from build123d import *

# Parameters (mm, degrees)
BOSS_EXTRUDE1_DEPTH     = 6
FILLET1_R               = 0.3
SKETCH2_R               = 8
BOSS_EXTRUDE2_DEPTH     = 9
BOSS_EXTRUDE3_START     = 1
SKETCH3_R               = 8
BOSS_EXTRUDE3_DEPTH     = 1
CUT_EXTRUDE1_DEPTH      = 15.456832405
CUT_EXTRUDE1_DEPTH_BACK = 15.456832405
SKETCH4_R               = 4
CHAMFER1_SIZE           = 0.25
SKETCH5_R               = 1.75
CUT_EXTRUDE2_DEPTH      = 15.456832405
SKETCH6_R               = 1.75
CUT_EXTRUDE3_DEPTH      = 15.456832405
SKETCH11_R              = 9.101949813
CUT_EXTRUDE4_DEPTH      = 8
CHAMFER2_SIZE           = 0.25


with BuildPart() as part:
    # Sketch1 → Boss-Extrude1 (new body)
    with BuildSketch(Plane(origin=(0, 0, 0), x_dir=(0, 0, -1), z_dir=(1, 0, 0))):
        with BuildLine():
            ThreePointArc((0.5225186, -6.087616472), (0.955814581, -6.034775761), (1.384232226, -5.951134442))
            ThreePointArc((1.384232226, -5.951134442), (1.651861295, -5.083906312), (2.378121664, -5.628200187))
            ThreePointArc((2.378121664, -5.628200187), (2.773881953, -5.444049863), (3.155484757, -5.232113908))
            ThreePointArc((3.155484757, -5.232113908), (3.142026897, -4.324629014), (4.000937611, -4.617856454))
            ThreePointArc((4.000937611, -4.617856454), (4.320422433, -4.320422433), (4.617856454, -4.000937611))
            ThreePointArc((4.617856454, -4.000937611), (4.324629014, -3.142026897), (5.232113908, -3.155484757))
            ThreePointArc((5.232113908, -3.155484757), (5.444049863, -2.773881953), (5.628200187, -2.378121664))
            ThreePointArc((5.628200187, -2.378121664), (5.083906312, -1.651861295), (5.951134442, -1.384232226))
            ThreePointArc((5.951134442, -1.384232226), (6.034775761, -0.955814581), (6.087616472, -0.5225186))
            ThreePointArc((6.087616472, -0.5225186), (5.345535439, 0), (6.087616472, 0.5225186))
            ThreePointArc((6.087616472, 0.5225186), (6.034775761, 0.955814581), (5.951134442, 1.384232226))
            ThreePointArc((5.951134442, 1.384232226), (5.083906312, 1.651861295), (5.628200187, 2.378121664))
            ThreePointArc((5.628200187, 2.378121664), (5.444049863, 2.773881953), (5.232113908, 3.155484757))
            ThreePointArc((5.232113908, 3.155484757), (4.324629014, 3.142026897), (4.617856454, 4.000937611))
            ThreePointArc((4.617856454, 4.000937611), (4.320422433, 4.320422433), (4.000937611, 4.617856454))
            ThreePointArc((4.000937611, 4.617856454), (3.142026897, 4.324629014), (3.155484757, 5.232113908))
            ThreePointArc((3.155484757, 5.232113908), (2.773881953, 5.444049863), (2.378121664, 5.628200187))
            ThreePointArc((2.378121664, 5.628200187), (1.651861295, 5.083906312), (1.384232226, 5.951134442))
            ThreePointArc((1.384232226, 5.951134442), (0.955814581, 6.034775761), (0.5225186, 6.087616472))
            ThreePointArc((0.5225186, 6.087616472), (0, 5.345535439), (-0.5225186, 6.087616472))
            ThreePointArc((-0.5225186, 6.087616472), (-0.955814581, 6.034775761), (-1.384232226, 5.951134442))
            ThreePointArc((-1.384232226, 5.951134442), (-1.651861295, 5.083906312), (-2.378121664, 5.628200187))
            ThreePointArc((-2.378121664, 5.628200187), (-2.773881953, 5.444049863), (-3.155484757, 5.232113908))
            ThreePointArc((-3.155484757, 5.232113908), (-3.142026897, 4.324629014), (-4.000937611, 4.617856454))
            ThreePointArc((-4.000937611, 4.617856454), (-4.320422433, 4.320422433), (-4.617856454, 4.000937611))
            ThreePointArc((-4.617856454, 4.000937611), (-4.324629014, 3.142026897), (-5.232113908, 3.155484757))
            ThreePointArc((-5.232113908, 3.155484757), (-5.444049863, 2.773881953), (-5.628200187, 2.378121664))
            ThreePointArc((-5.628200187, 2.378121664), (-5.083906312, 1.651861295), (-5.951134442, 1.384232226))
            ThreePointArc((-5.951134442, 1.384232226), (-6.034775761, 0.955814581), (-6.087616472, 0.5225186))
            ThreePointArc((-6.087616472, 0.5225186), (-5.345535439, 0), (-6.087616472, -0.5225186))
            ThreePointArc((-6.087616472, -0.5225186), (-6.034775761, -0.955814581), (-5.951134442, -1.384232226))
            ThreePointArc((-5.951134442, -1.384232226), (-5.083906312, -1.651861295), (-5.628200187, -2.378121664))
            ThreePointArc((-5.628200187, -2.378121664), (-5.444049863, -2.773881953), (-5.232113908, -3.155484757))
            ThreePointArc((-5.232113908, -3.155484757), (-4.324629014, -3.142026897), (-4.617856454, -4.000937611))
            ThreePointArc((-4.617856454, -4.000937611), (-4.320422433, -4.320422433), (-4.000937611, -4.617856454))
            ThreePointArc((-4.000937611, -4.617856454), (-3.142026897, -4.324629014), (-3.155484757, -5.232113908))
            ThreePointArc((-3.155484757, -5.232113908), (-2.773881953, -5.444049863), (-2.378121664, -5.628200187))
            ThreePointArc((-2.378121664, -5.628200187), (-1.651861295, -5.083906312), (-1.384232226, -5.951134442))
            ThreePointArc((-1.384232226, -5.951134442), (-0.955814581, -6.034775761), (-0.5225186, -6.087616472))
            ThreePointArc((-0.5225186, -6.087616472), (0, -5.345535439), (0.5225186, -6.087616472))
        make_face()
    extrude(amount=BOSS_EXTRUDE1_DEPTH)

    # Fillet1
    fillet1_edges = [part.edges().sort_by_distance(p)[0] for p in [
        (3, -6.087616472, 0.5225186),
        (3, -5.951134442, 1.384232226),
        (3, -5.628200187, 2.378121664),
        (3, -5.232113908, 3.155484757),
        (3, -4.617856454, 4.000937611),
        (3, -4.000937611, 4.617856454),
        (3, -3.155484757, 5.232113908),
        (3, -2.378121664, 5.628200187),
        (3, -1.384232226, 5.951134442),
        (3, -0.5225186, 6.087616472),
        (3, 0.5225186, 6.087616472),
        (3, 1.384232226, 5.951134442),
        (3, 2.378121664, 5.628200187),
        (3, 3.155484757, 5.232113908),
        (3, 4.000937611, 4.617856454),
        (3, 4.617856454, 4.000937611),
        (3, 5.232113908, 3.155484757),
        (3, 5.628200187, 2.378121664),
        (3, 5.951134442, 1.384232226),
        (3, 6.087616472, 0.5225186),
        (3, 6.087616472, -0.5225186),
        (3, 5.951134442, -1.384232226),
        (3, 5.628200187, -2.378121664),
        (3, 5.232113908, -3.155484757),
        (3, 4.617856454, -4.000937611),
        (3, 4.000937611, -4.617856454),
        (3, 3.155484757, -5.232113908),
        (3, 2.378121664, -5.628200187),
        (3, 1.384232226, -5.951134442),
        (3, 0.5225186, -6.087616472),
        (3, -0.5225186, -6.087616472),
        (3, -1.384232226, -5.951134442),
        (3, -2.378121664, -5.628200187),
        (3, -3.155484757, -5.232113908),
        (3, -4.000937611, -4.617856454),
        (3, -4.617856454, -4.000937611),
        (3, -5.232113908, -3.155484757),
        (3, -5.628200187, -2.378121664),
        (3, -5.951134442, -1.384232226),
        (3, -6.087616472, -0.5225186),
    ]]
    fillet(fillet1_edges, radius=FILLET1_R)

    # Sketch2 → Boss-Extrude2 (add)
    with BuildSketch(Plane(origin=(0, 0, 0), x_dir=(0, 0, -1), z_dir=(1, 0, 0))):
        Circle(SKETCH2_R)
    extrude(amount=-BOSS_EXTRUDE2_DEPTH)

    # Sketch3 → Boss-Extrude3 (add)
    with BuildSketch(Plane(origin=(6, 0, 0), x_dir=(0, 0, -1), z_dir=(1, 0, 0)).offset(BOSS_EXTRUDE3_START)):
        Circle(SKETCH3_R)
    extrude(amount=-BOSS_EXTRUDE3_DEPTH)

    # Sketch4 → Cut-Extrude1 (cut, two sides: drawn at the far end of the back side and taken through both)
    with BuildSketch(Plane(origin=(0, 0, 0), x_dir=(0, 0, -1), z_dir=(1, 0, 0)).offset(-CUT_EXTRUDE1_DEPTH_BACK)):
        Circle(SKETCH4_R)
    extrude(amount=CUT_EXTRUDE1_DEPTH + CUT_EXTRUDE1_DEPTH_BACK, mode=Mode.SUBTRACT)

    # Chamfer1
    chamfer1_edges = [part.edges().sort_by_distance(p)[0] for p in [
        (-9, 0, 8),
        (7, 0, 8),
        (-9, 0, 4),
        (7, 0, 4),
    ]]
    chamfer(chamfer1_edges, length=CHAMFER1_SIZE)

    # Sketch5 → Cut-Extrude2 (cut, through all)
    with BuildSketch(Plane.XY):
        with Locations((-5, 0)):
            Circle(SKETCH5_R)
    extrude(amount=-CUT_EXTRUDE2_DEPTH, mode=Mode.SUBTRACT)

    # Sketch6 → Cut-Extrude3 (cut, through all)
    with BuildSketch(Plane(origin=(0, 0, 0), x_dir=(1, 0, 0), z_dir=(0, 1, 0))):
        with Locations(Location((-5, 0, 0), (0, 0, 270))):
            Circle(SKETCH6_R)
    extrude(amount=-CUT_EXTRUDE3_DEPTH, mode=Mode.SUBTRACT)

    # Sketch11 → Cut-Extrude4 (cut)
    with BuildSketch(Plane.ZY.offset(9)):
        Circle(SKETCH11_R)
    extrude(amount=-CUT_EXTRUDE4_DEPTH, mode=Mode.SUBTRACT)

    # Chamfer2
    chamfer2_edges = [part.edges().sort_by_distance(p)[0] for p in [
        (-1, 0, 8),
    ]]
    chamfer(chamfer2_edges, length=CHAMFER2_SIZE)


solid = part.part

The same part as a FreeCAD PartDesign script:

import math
import FreeCAD as App
import Part
import Sketcher


def edges_at(feature, points):
    """Names of the edges that pass closest to the given points."""
    edges = feature.Shape.Edges
    near = lambda p: min(range(len(edges)), key=lambda i: edges[i].distToShape(Part.Vertex(*p))[0])
    return sorted({f"Edge{near(p) + 1}" for p in points})

doc = App.newDocument("Part")
params = doc.addObject("Spreadsheet::Sheet", "Params")
for row, (alias, value) in enumerate([
    ("sketch1_radius", "6.11 mm"),
    ("pad1_length", "6 mm"),
    ("fillet_radius", "0.3 mm"),
    ("sketch2_diameter", "16 mm"),
    ("pad2_length", "9 mm"),
    ("sketch3_diameter", "16 mm"),
    ("pad3_length", "1 mm"),
    ("sketch4_diameter", "8 mm"),
    ("chamfer_size", "0.25 mm"),
    ("sketch5_diameter", "3.5 mm"),
    ("sketch6_diameter", "3.5 mm"),
    ("pocket4_length", "8 mm"),
    ("chamfer2_size", "0.25 mm"),
], start=1):
    params.set(f"A{row}", alias)
    params.set(f"B{row}", "=" + value)
    params.setAlias(f"B{row}", alias)

body = doc.addObject("PartDesign::Body", "Body")

# Sketch on YZ plane
sketch1 = body.newObject("Sketcher::SketchObject", "Sketch")
sketch1.AttachmentSupport = (doc.getObject("YZ_Plane"), [""])
sketch1.MapMode = "FlatFace"
sketch1.addGeometry(Part.ArcOfCircle(Part.Circle(App.Vector(0, 0, 0), App.Vector(0, 0, 1), 6.1), math.radians(-175.09), math.radians(-166.91)), False)
sketch1.addGeometry(Part.ArcOfCircle(Part.Circle(App.Vector(-5.6, -1.8, 0), App.Vector(0, 0, 1), 0.6), math.radians(-92), math.radians(128)), False)
sketch1.addGeometry(Part.ArcOfCircle(Part.Circle(App.Vector(0, 0, 0), App.Vector(0, 0, 1), 6.1), math.radians(-157.09), math.radians(-148.91)), False)
sketch1.addGeometry(Part.ArcOfCircle(Part.Circle(App.Vector(-4.8, -3.5, 0), App.Vector(0, 0, 1), 0.6), math.radians(-74), math.radians(146)), False)
sketch1.addGeometry(Part.ArcOfCircle(Part.Circle(App.Vector(0, 0, 0), App.Vector(0, 0, 1), 6.1), math.radians(-139.09), math.radians(-130.91)), False)
sketch1.addGeometry(Part.ArcOfCircle(Part.Circle(App.Vector(-3.5, -4.8, 0), App.Vector(0, 0, 1), 0.6), math.radians(-56), math.radians(164)), False)
sketch1.addGeometry(Part.ArcOfCircle(Part.Circle(App.Vector(0, 0, 0), App.Vector(0, 0, 1), 6.1), math.radians(-121.09), math.radians(-112.91)), False)
sketch1.addGeometry(Part.ArcOfCircle(Part.Circle(App.Vector(-1.8, -5.6, 0), App.Vector(0, 0, 1), 0.6), math.radians(-38), math.radians(182)), False)
sketch1.addGeometry(Part.ArcOfCircle(Part.Circle(App.Vector(0, 0, 0), App.Vector(0, 0, 1), 6.1), math.radians(-103.09), math.radians(-94.91)), False)
sketch1.addGeometry(Part.ArcOfCircle(Part.Circle(App.Vector(0, -5.9, 0), App.Vector(0, 0, 1), 0.6), math.radians(-20), math.radians(200)), False)
sketch1.addGeometry(Part.ArcOfCircle(Part.Circle(App.Vector(0, 0, 0), App.Vector(0, 0, 1), 6.1), math.radians(-85.09), math.radians(-76.91)), False)
sketch1.addGeometry(Part.ArcOfCircle(Part.Circle(App.Vector(1.8, -5.6, 0), App.Vector(0, 0, 1), 0.6), math.radians(-2), math.radians(218)), False)
sketch1.addGeometry(Part.ArcOfCircle(Part.Circle(App.Vector(0, 0, 0), App.Vector(0, 0, 1), 6.1), math.radians(-67.09), math.radians(-58.91)), False)
sketch1.addGeometry(Part.ArcOfCircle(Part.Circle(App.Vector(3.5, -4.8, 0), App.Vector(0, 0, 1), 0.6), math.radians(16), math.radians(236)), False)
sketch1.addGeometry(Part.ArcOfCircle(Part.Circle(App.Vector(0, 0, 0), App.Vector(0, 0, 1), 6.1), math.radians(-49.09), math.radians(-40.91)), False)
sketch1.addGeometry(Part.ArcOfCircle(Part.Circle(App.Vector(4.8, -3.5, 0), App.Vector(0, 0, 1), 0.6), math.radians(34), math.radians(254)), False)
sketch1.addGeometry(Part.ArcOfCircle(Part.Circle(App.Vector(0, 0, 0), App.Vector(0, 0, 1), 6.1), math.radians(-31.09), math.radians(-22.91)), False)
sketch1.addGeometry(Part.ArcOfCircle(Part.Circle(App.Vector(5.6, -1.8, 0), App.Vector(0, 0, 1), 0.6), math.radians(52), math.radians(272)), False)
sketch1.addGeometry(Part.ArcOfCircle(Part.Circle(App.Vector(0, 0, 0), App.Vector(0, 0, 1), 6.1), math.radians(-13.09), math.radians(-4.91)), False)
sketch1.addGeometry(Part.ArcOfCircle(Part.Circle(App.Vector(5.9, 0, 0), App.Vector(0, 0, 1), 0.6), math.radians(70), math.radians(290)), False)
sketch1.addGeometry(Part.ArcOfCircle(Part.Circle(App.Vector(0, 0, 0), App.Vector(0, 0, 1), 6.1), math.radians(4.91), math.radians(13.09)), False)
sketch1.addGeometry(Part.ArcOfCircle(Part.Circle(App.Vector(5.6, 1.8, 0), App.Vector(0, 0, 1), 0.6), math.radians(88), math.radians(308)), False)
sketch1.addGeometry(Part.ArcOfCircle(Part.Circle(App.Vector(0, 0, 0), App.Vector(0, 0, 1), 6.1), math.radians(22.91), math.radians(31.09)), False)
sketch1.addGeometry(Part.ArcOfCircle(Part.Circle(App.Vector(4.8, 3.5, 0), App.Vector(0, 0, 1), 0.6), math.radians(106), math.radians(326)), False)
sketch1.addGeometry(Part.ArcOfCircle(Part.Circle(App.Vector(0, 0, 0), App.Vector(0, 0, 1), 6.1), math.radians(40.91), math.radians(49.09)), False)
sketch1.addGeometry(Part.ArcOfCircle(Part.Circle(App.Vector(3.5, 4.8, 0), App.Vector(0, 0, 1), 0.6), math.radians(124), math.radians(344)), False)
sketch1.addGeometry(Part.ArcOfCircle(Part.Circle(App.Vector(0, 0, 0), App.Vector(0, 0, 1), 6.1), math.radians(58.91), math.radians(67.09)), False)
sketch1.addGeometry(Part.ArcOfCircle(Part.Circle(App.Vector(1.8, 5.6, 0), App.Vector(0, 0, 1), 0.6), math.radians(142), math.radians(362)), False)
sketch1.addGeometry(Part.ArcOfCircle(Part.Circle(App.Vector(0, 0, 0), App.Vector(0, 0, 1), 6.1), math.radians(76.91), math.radians(85.09)), False)
sketch1.addGeometry(Part.ArcOfCircle(Part.Circle(App.Vector(0, 5.9, 0), App.Vector(0, 0, 1), 0.6), math.radians(160), math.radians(380)), False)
sketch1.addGeometry(Part.ArcOfCircle(Part.Circle(App.Vector(0, 0, 0), App.Vector(0, 0, 1), 6.1), math.radians(94.91), math.radians(103.09)), False)
sketch1.addGeometry(Part.ArcOfCircle(Part.Circle(App.Vector(-1.8, 5.6, 0), App.Vector(0, 0, 1), 0.6), math.radians(178), math.radians(398)), False)
sketch1.addGeometry(Part.ArcOfCircle(Part.Circle(App.Vector(0, 0, 0), App.Vector(0, 0, 1), 6.1), math.radians(112.91), math.radians(121.09)), False)
sketch1.addGeometry(Part.ArcOfCircle(Part.Circle(App.Vector(-3.5, 4.8, 0), App.Vector(0, 0, 1), 0.6), math.radians(-164), math.radians(56)), False)
sketch1.addGeometry(Part.ArcOfCircle(Part.Circle(App.Vector(0, 0, 0), App.Vector(0, 0, 1), 6.1), math.radians(130.91), math.radians(139.09)), False)
sketch1.addGeometry(Part.ArcOfCircle(Part.Circle(App.Vector(-4.8, 3.5, 0), App.Vector(0, 0, 1), 0.6), math.radians(-146), math.radians(74)), False)
sketch1.addGeometry(Part.ArcOfCircle(Part.Circle(App.Vector(0, 0, 0), App.Vector(0, 0, 1), 6.1), math.radians(148.91), math.radians(157.09)), False)
sketch1.addGeometry(Part.ArcOfCircle(Part.Circle(App.Vector(-5.6, 1.8, 0), App.Vector(0, 0, 1), 0.6), math.radians(-128), math.radians(92)), False)
sketch1.addGeometry(Part.ArcOfCircle(Part.Circle(App.Vector(0, 0, 0), App.Vector(0, 0, 1), 6.1), math.radians(166.91), math.radians(175.09)), False)
sketch1.addGeometry(Part.ArcOfCircle(Part.Circle(App.Vector(-5.9, 0, 0), App.Vector(0, 0, 1), 0.6), math.radians(-110), math.radians(110)), False)
sketch1.addConstraint(Sketcher.Constraint("Coincident", 0, 2, 1, 2))
sketch1.addConstraint(Sketcher.Constraint("Coincident", 1, 1, 2, 1))
sketch1.addConstraint(Sketcher.Constraint("Coincident", 2, 2, 3, 2))
sketch1.addConstraint(Sketcher.Constraint("Coincident", 3, 1, 4, 1))
sketch1.addConstraint(Sketcher.Constraint("Coincident", 4, 2, 5, 2))
sketch1.addConstraint(Sketcher.Constraint("Coincident", 5, 1, 6, 1))
sketch1.addConstraint(Sketcher.Constraint("Coincident", 6, 2, 7, 2))
sketch1.addConstraint(Sketcher.Constraint("Coincident", 7, 1, 8, 1))
sketch1.addConstraint(Sketcher.Constraint("Coincident", 8, 2, 9, 2))
sketch1.addConstraint(Sketcher.Constraint("Coincident", 9, 1, 10, 1))
sketch1.addConstraint(Sketcher.Constraint("Coincident", 10, 2, 11, 2))
sketch1.addConstraint(Sketcher.Constraint("Coincident", 11, 1, 12, 1))
sketch1.addConstraint(Sketcher.Constraint("Coincident", 12, 2, 13, 2))
sketch1.addConstraint(Sketcher.Constraint("Coincident", 13, 1, 14, 1))
sketch1.addConstraint(Sketcher.Constraint("Coincident", 14, 2, 15, 2))
sketch1.addConstraint(Sketcher.Constraint("Coincident", 15, 1, 16, 1))
sketch1.addConstraint(Sketcher.Constraint("Coincident", 16, 2, 17, 2))
sketch1.addConstraint(Sketcher.Constraint("Coincident", 17, 1, 18, 1))
sketch1.addConstraint(Sketcher.Constraint("Coincident", 18, 2, 19, 2))
sketch1.addConstraint(Sketcher.Constraint("Coincident", 19, 1, 20, 1))
sketch1.addConstraint(Sketcher.Constraint("Coincident", 20, 2, 21, 2))
sketch1.addConstraint(Sketcher.Constraint("Coincident", 21, 1, 22, 1))
sketch1.addConstraint(Sketcher.Constraint("Coincident", 22, 2, 23, 2))
sketch1.addConstraint(Sketcher.Constraint("Coincident", 23, 1, 24, 1))
sketch1.addConstraint(Sketcher.Constraint("Coincident", 24, 2, 25, 2))
sketch1.addConstraint(Sketcher.Constraint("Coincident", 25, 1, 26, 1))
sketch1.addConstraint(Sketcher.Constraint("Coincident", 26, 2, 27, 2))
sketch1.addConstraint(Sketcher.Constraint("Coincident", 27, 1, 28, 1))
sketch1.addConstraint(Sketcher.Constraint("Coincident", 28, 2, 29, 2))
sketch1.addConstraint(Sketcher.Constraint("Coincident", 29, 1, 30, 1))
sketch1.addConstraint(Sketcher.Constraint("Coincident", 30, 2, 31, 2))
sketch1.addConstraint(Sketcher.Constraint("Coincident", 31, 1, 32, 1))
sketch1.addConstraint(Sketcher.Constraint("Coincident", 32, 2, 33, 2))
sketch1.addConstraint(Sketcher.Constraint("Coincident", 33, 1, 34, 1))
sketch1.addConstraint(Sketcher.Constraint("Coincident", 34, 2, 35, 2))
sketch1.addConstraint(Sketcher.Constraint("Coincident", 35, 1, 36, 1))
sketch1.addConstraint(Sketcher.Constraint("Coincident", 36, 2, 37, 2))
sketch1.addConstraint(Sketcher.Constraint("Coincident", 37, 1, 38, 1))
sketch1.addConstraint(Sketcher.Constraint("Coincident", 38, 2, 39, 2))
sketch1.addConstraint(Sketcher.Constraint("Coincident", 39, 1, 0, 1))
sketch1.addConstraint(Sketcher.Constraint("Coincident", 0, 3, -1, 1))
sketch1.addConstraint(Sketcher.Constraint("Coincident", 2, 3, -1, 1))
sketch1.addConstraint(Sketcher.Constraint("Coincident", 4, 3, -1, 1))
sketch1.addConstraint(Sketcher.Constraint("Coincident", 6, 3, -1, 1))
sketch1.addConstraint(Sketcher.Constraint("Coincident", 8, 3, -1, 1))
sketch1.addConstraint(Sketcher.Constraint("Coincident", 10, 3, -1, 1))
sketch1.addConstraint(Sketcher.Constraint("Coincident", 12, 3, -1, 1))
sketch1.addConstraint(Sketcher.Constraint("Coincident", 14, 3, -1, 1))
sketch1.addConstraint(Sketcher.Constraint("Coincident", 16, 3, -1, 1))
sketch1.addConstraint(Sketcher.Constraint("Coincident", 18, 3, -1, 1))
sketch1.addConstraint(Sketcher.Constraint("Coincident", 20, 3, -1, 1))
sketch1.addConstraint(Sketcher.Constraint("Coincident", 22, 3, -1, 1))
sketch1.addConstraint(Sketcher.Constraint("Coincident", 24, 3, -1, 1))
sketch1.addConstraint(Sketcher.Constraint("Coincident", 26, 3, -1, 1))
sketch1.addConstraint(Sketcher.Constraint("Coincident", 28, 3, -1, 1))
sketch1.addConstraint(Sketcher.Constraint("Coincident", 30, 3, -1, 1))
sketch1.addConstraint(Sketcher.Constraint("Coincident", 32, 3, -1, 1))
sketch1.addConstraint(Sketcher.Constraint("Coincident", 34, 3, -1, 1))
sketch1.addConstraint(Sketcher.Constraint("Coincident", 36, 3, -1, 1))
sketch1.addConstraint(Sketcher.Constraint("Coincident", 38, 3, -1, 1))
sketch1.addConstraint(Sketcher.Constraint("Equal", 0, 2))
sketch1.addConstraint(Sketcher.Constraint("Equal", 1, 3))
sketch1.addConstraint(Sketcher.Constraint("Equal", 2, 4))
sketch1.addConstraint(Sketcher.Constraint("Equal", 3, 5))
sketch1.addConstraint(Sketcher.Constraint("Equal", 4, 6))
sketch1.addConstraint(Sketcher.Constraint("Equal", 5, 7))
sketch1.addConstraint(Sketcher.Constraint("Equal", 6, 8))
sketch1.addConstraint(Sketcher.Constraint("Equal", 7, 9))
sketch1.addConstraint(Sketcher.Constraint("Equal", 8, 10))
sketch1.addConstraint(Sketcher.Constraint("Equal", 9, 11))
sketch1.addConstraint(Sketcher.Constraint("Equal", 10, 12))
sketch1.addConstraint(Sketcher.Constraint("Equal", 11, 13))
sketch1.addConstraint(Sketcher.Constraint("Equal", 12, 14))
sketch1.addConstraint(Sketcher.Constraint("Equal", 13, 15))
sketch1.addConstraint(Sketcher.Constraint("Equal", 14, 16))
sketch1.addConstraint(Sketcher.Constraint("Equal", 15, 17))
sketch1.addConstraint(Sketcher.Constraint("Equal", 16, 18))
sketch1.addConstraint(Sketcher.Constraint("Equal", 17, 19))
sketch1.addConstraint(Sketcher.Constraint("Equal", 18, 20))
sketch1.addConstraint(Sketcher.Constraint("Equal", 19, 21))
sketch1.addConstraint(Sketcher.Constraint("Equal", 20, 22))
sketch1.addConstraint(Sketcher.Constraint("Equal", 21, 23))
sketch1.addConstraint(Sketcher.Constraint("Equal", 22, 24))
sketch1.addConstraint(Sketcher.Constraint("Equal", 23, 25))
sketch1.addConstraint(Sketcher.Constraint("Equal", 24, 26))
sketch1.addConstraint(Sketcher.Constraint("Equal", 25, 27))
sketch1.addConstraint(Sketcher.Constraint("Equal", 26, 28))
sketch1.addConstraint(Sketcher.Constraint("Equal", 27, 29))
sketch1.addConstraint(Sketcher.Constraint("Equal", 28, 30))
sketch1.addConstraint(Sketcher.Constraint("Equal", 29, 31))
sketch1.addConstraint(Sketcher.Constraint("Equal", 30, 32))
sketch1.addConstraint(Sketcher.Constraint("Equal", 31, 33))
sketch1.addConstraint(Sketcher.Constraint("Equal", 32, 34))
sketch1.addConstraint(Sketcher.Constraint("Equal", 33, 35))
sketch1.addConstraint(Sketcher.Constraint("Equal", 34, 36))
sketch1.addConstraint(Sketcher.Constraint("Equal", 35, 37))
sketch1.addConstraint(Sketcher.Constraint("Equal", 36, 38))
sketch1.addConstraint(Sketcher.Constraint("Equal", 37, 39))
sketch1.addConstraint(Sketcher.Constraint("Symmetric", 1, 3, 21, 3, -1, 1))
sketch1.addConstraint(Sketcher.Constraint("Symmetric", 3, 3, 23, 3, -1, 1))
sketch1.addConstraint(Sketcher.Constraint("Symmetric", 5, 3, 25, 3, -1, 1))
sketch1.addConstraint(Sketcher.Constraint("Symmetric", 7, 3, 27, 3, -1, 1))
sketch1.addConstraint(Sketcher.Constraint("Symmetric", 9, 3, 29, 3, -1, 1))
sketch1.addConstraint(Sketcher.Constraint("Symmetric", 11, 3, 31, 3, -1, 1))
sketch1.addConstraint(Sketcher.Constraint("Symmetric", 13, 3, 33, 3, -1, 1))
sketch1.addConstraint(Sketcher.Constraint("Symmetric", 15, 3, 35, 3, -1, 1))
sketch1.addConstraint(Sketcher.Constraint("Symmetric", 17, 3, 37, 3, -1, 1))
sketch1.addConstraint(Sketcher.Constraint("Symmetric", 19, 3, 39, 3, -1, 1))
sketch1.addConstraint(Sketcher.Constraint("Symmetric", 7, 3, 11, 3, -2))
sketch1.addConstraint(Sketcher.Constraint("Symmetric", 5, 3, 13, 3, -2))
sketch1.addConstraint(Sketcher.Constraint("Symmetric", 3, 3, 15, 3, -2))
sketch1.addConstraint(Sketcher.Constraint("Symmetric", 1, 3, 17, 3, -2))
sketch1.addConstraint(Sketcher.Constraint("PointOnObject", 9, 3, -2))
sketch1.addConstraint(Sketcher.Constraint("PointOnObject", 19, 3, -1))
sketch1.addConstraint(Sketcher.Constraint("Radius", 0, 6.11))
sketch1.addConstraint(Sketcher.Constraint("Radius", 1, 0.555))
sketch1.addConstraint(Sketcher.Constraint("DistanceX", 1, 1, -1, 1, 5.6282))
sketch1.addConstraint(Sketcher.Constraint("DistanceY", 6, 2, -1, 1, 5.6282))
sketch1.addConstraint(Sketcher.Constraint("DistanceX", 8, 2, -1, 1, 0.522519))
sketch1.addConstraint(Sketcher.Constraint("DistanceY", 18, 2, -1, 1, 0.522519))
sketch1.addConstraint(Sketcher.Constraint("DistanceX", 1, 3, -1, 1, 5.611743))
sketch1.addConstraint(Sketcher.Constraint("DistanceX", 3, 3, -1, 1, 4.773633))
sketch1.addConstraint(Sketcher.Constraint("DistanceY", 3, 3, -1, 1, 3.468248))
sketch1.addConstraint(Sketcher.Constraint("DistanceX", 5, 3, -1, 1, 3.468248))
sketch1.addConstraint(Sketcher.Constraint("DistanceY", 5, 3, -1, 1, 4.773633))
sketch1.addConstraint(Sketcher.Constraint("DistanceX", 7, 3, -1, 1, 1.823366))
sketch1.setExpression("Constraints[114]", "Params.sketch1_radius")
pad1 = body.newObject("PartDesign::Pad", "Pad")
pad1.Profile = sketch1
pad1.setExpression("Length", "Params.pad1_length")
doc.recompute()

fillet = body.newObject("PartDesign::Fillet", "Fillet")
fillet.Base = (pad1, edges_at(pad1, [
    (3, -6.088, 0.523),
    (3, -5.951, 1.384),
    (3, -5.628, 2.378),
    (3, -5.232, 3.155),
    (3, -4.618, 4.001),
    (3, -4.001, 4.618),
    (3, -3.155, 5.232),
    (3, -2.378, 5.628),
    (3, -1.384, 5.951),
    (3, -0.523, 6.088),
    (3, 0.523, 6.088),
    (3, 1.384, 5.951),
    (3, 2.378, 5.628),
    (3, 3.155, 5.232),
    (3, 4.001, 4.618),
    (3, 4.618, 4.001),
    (3, 5.232, 3.155),
    (3, 5.628, 2.378),
    (3, 5.951, 1.384),
    (3, 6.088, 0.523),
    (3, 6.088, -0.523),
    (3, 5.951, -1.384),
    (3, 5.628, -2.378),
    (3, 5.232, -3.155),
    (3, 4.618, -4.001),
    (3, 4.001, -4.618),
    (3, 3.155, -5.232),
    (3, 2.378, -5.628),
    (3, 1.384, -5.951),
    (3, 0.523, -6.088),
    (3, -0.523, -6.088),
    (3, -1.384, -5.951),
    (3, -2.378, -5.628),
    (3, -3.155, -5.232),
    (3, -4.001, -4.618),
    (3, -4.618, -4.001),
    (3, -5.232, -3.155),
    (3, -5.628, -2.378),
    (3, -5.951, -1.384),
    (3, -6.088, -0.523),
]))
fillet.setExpression("Radius", "Params.fillet_radius")

# Sketch on YZ plane
sketch2 = body.newObject("Sketcher::SketchObject", "Sketch001")
sketch2.AttachmentSupport = (doc.getObject("YZ_Plane"), [""])
sketch2.MapMode = "FlatFace"
sketch2.addGeometry(Part.Circle(App.Vector(0, 0, 0), App.Vector(0, 0, 1), 8), False)
sketch2.addConstraint(Sketcher.Constraint("Coincident", 0, 3, -1, 1))
sketch2.addConstraint(Sketcher.Constraint("Diameter", 0, 16.0))
sketch2.setExpression("Constraints[1]", "Params.sketch2_diameter")
pad2 = body.newObject("PartDesign::Pad", "Pad001")
pad2.Profile = sketch2
pad2.setExpression("Length", "Params.pad2_length")
pad2.Reversed = True

# Sketch on YZ plane
sketch3 = body.newObject("Sketcher::SketchObject", "Sketch002")
sketch3.AttachmentSupport = (doc.getObject("YZ_Plane"), [""])
sketch3.MapMode = "FlatFace"
sketch3.AttachmentOffset = App.Placement(App.Vector(0, 0, 7), App.Rotation())
sketch3.addGeometry(Part.Circle(App.Vector(0, 0, 0), App.Vector(0, 0, 1), 8), False)
sketch3.addConstraint(Sketcher.Constraint("Coincident", 0, 3, -1, 1))
sketch3.addConstraint(Sketcher.Constraint("Diameter", 0, 16.0))
sketch3.setExpression("Constraints[1]", "Params.sketch3_diameter")
pad3 = body.newObject("PartDesign::Pad", "Pad002")
pad3.Profile = sketch3
pad3.setExpression("Length", "Params.pad3_length")
pad3.Reversed = True

# Sketch on YZ plane
sketch4 = body.newObject("Sketcher::SketchObject", "Sketch003")
sketch4.AttachmentSupport = (doc.getObject("YZ_Plane"), [""])
sketch4.MapMode = "FlatFace"
sketch4.addGeometry(Part.Circle(App.Vector(0, 0, 0), App.Vector(0, 0, 1), 4), False)
sketch4.addConstraint(Sketcher.Constraint("Coincident", 0, 3, -1, 1))
sketch4.addConstraint(Sketcher.Constraint("Diameter", 0, 8.0))
sketch4.setExpression("Constraints[1]", "Params.sketch4_diameter")
pocket1 = body.newObject("PartDesign::Pocket", "Pocket")
pocket1.Profile = sketch4
pocket1.Type = "ThroughAll"
pocket1.Midplane = True
doc.recompute()

chamfer = body.newObject("PartDesign::Chamfer", "Chamfer")
chamfer.Base = (pocket1, edges_at(pocket1, [
    (-9, 0, 8),
    (7, 0, 8),
    (-9, 0, 4),
    (7, 0, 4),
]))
chamfer.setExpression("Size", "Params.chamfer_size")

# Sketch on XY plane
sketch5 = body.newObject("Sketcher::SketchObject", "Sketch004")
sketch5.AttachmentSupport = (doc.getObject("XY_Plane"), [""])
sketch5.MapMode = "FlatFace"
sketch5.addGeometry(Part.Circle(App.Vector(-5, 0, 0), App.Vector(0, 0, 1), 1.8), False)
sketch5.addConstraint(Sketcher.Constraint("PointOnObject", 0, 3, -1))
sketch5.addConstraint(Sketcher.Constraint("Diameter", 0, 3.5))
sketch5.addConstraint(Sketcher.Constraint("DistanceX", 0, 3, -1, 1, 5.0))
sketch5.setExpression("Constraints[1]", "Params.sketch5_diameter")
pocket2 = body.newObject("PartDesign::Pocket", "Pocket001")
pocket2.Profile = sketch5
pocket2.Type = "ThroughAll"

# Sketch on XZ plane
sketch6 = body.newObject("Sketcher::SketchObject", "Sketch005")
sketch6.AttachmentSupport = (doc.getObject("XZ_Plane"), [""])
sketch6.MapMode = "FlatFace"
sketch6.addGeometry(Part.Circle(App.Vector(-5, 0, 0), App.Vector(0, 0, 1), 1.8), False)
sketch6.addConstraint(Sketcher.Constraint("PointOnObject", 0, 3, -1))
sketch6.addConstraint(Sketcher.Constraint("Diameter", 0, 3.5))
sketch6.addConstraint(Sketcher.Constraint("DistanceX", 0, 3, -1, 1, 5.0))
sketch6.setExpression("Constraints[1]", "Params.sketch6_diameter")
pocket3 = body.newObject("PartDesign::Pocket", "Pocket002")
pocket3.Profile = sketch6
pocket3.Type = "ThroughAll"
pocket3.Reversed = True

# Sketch on YZ plane
sketch7 = body.newObject("Sketcher::SketchObject", "Sketch006")
sketch7.AttachmentSupport = (doc.getObject("YZ_Plane"), [""])
sketch7.MapMode = "FlatFace"
sketch7.AttachmentOffset = App.Placement(App.Vector(0, 0, -9), App.Rotation())
sketch7.addGeometry(Part.Circle(App.Vector(0, 0, 0), App.Vector(0, 0, 1), 9), False)
sketch7.addConstraint(Sketcher.Constraint("Coincident", 0, 3, -1, 1))
sketch7.addConstraint(Sketcher.Constraint("Diameter", 0, 18.2039))
pocket4 = body.newObject("PartDesign::Pocket", "Pocket003")
pocket4.Profile = sketch7
pocket4.setExpression("Length", "Params.pocket4_length")
pocket4.Reversed = True
doc.recompute()

chamfer2 = body.newObject("PartDesign::Chamfer", "Chamfer001")
chamfer2.Base = (pocket4, edges_at(pocket4, [(-1, 0, 8)]))
chamfer2.setExpression("Size", "Params.chamfer2_size")

doc.recompute()
